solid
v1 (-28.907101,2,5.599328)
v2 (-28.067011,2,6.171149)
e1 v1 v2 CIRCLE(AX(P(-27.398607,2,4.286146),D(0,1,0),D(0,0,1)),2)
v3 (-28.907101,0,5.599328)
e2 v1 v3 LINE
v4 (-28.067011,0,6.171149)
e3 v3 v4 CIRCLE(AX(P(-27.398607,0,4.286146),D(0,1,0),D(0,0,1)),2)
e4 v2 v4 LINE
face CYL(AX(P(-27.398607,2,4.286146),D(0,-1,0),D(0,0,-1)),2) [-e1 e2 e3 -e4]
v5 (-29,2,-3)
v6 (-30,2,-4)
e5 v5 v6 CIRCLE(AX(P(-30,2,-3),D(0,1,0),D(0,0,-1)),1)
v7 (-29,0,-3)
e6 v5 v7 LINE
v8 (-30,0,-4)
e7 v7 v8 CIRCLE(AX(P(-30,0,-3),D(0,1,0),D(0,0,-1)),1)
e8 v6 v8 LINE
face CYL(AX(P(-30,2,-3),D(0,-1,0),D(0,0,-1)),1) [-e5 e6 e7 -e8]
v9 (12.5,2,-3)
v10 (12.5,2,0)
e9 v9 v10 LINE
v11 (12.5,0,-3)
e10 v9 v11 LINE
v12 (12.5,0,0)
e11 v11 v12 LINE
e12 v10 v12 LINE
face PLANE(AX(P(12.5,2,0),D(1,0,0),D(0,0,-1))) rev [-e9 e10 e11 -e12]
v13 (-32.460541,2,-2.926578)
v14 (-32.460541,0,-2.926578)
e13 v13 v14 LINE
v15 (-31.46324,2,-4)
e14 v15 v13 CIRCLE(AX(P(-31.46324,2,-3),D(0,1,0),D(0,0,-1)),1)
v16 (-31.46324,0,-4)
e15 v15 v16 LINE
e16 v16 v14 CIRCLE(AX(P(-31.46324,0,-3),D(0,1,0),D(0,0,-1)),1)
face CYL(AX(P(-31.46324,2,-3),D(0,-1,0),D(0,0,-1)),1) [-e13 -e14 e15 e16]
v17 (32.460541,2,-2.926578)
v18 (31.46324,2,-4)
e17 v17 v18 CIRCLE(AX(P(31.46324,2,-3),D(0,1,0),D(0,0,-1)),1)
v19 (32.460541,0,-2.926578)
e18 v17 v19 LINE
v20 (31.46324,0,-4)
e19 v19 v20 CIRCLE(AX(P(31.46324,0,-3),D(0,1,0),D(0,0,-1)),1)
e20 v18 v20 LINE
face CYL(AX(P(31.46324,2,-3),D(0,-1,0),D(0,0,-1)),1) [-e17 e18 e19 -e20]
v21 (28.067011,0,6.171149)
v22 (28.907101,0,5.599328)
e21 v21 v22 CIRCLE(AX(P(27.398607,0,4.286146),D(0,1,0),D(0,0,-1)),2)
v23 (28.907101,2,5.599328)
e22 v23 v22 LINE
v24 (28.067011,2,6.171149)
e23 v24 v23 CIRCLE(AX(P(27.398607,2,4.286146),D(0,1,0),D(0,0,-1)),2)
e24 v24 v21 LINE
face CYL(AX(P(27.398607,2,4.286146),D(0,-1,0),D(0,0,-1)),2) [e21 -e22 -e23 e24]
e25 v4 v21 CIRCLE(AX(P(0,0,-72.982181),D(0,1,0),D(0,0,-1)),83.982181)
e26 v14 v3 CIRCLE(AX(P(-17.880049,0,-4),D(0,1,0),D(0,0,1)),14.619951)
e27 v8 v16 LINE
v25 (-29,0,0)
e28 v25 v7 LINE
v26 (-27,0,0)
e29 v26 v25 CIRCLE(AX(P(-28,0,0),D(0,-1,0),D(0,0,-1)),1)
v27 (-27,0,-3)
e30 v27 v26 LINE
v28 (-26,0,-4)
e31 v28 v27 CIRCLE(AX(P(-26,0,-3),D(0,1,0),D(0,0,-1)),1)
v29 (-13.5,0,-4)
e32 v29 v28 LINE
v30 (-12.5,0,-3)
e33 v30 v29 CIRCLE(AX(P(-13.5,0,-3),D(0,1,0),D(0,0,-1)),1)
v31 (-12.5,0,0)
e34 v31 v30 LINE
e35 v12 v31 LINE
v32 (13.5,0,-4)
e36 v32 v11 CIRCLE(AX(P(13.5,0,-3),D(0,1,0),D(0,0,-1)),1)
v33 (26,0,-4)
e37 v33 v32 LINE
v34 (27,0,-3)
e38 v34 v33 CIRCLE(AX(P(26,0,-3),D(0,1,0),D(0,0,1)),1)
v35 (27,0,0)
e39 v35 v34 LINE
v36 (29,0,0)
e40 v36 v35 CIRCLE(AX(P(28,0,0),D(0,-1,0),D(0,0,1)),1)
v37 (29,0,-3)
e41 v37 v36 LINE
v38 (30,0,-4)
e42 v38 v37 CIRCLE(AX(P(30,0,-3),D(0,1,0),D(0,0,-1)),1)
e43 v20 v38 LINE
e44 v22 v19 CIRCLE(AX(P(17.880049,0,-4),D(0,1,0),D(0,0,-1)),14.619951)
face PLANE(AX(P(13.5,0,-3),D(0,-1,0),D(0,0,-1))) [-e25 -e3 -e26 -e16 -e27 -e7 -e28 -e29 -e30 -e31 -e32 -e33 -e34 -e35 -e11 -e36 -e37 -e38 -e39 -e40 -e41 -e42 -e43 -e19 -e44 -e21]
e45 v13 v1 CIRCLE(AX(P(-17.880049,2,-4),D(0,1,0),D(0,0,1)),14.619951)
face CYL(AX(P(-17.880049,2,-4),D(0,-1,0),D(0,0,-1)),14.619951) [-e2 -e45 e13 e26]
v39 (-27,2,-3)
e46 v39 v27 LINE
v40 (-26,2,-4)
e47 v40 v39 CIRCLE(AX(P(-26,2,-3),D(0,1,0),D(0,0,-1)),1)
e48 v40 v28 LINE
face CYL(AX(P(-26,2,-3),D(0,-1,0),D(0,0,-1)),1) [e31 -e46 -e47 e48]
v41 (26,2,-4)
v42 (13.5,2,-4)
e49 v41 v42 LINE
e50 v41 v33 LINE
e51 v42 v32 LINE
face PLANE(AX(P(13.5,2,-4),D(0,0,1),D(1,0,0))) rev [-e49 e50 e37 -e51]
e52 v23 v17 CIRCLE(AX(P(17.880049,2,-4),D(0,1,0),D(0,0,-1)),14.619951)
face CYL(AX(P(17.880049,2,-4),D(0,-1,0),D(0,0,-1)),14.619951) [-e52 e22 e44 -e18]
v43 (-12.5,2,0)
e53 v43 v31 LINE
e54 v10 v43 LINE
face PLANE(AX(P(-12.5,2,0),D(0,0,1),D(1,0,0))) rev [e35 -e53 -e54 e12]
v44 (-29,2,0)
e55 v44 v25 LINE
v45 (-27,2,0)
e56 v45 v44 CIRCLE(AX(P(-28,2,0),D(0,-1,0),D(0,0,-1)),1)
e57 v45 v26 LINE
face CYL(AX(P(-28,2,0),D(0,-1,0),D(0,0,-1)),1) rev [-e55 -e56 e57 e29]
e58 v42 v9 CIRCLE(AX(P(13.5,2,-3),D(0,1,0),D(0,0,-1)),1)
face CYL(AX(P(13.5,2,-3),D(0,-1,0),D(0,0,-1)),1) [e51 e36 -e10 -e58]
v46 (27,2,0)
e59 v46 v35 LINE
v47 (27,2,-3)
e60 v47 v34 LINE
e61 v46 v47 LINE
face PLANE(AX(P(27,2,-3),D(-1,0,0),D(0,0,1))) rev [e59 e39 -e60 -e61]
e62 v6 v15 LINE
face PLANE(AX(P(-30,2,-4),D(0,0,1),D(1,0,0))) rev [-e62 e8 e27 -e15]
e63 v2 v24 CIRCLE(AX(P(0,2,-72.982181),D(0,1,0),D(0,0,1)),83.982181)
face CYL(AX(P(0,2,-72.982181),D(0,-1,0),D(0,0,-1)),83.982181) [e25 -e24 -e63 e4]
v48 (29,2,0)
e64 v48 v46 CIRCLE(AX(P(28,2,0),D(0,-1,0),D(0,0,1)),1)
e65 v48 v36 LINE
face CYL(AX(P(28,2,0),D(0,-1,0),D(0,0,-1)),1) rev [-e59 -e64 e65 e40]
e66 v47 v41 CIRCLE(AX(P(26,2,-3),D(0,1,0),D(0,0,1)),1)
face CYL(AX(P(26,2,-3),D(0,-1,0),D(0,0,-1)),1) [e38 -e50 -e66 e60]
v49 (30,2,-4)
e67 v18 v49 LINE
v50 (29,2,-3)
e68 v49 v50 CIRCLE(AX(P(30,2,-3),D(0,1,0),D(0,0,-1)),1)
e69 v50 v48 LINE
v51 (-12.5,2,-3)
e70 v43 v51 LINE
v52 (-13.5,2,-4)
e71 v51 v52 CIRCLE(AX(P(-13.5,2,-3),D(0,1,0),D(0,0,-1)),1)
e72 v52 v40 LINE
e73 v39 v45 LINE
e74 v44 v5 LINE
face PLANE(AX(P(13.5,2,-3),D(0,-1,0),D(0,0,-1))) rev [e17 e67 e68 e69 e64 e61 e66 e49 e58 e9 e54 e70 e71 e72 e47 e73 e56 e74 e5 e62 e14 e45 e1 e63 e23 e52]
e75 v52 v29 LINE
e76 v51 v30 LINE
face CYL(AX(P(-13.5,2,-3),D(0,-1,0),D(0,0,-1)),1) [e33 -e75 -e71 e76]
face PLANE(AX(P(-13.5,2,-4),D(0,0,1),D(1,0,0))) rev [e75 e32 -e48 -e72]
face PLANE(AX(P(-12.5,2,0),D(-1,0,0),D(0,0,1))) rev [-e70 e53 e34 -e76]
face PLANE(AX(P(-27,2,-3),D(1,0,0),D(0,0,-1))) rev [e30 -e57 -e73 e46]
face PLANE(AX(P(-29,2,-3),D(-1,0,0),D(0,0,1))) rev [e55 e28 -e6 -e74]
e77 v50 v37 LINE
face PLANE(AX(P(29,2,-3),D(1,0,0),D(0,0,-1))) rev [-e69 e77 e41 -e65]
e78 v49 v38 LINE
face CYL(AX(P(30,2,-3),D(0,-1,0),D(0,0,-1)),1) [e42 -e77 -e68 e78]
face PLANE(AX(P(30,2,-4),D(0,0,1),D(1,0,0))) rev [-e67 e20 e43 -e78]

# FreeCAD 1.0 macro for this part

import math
import FreeCAD as App
import Part
import Sketcher

V = App.Vector
Q = App.Units.Quantity

doc = App.newDocument("Part")
body = doc.addObject("PartDesign::Body", "Body")

sketch1 = body.newObject("Sketcher::SketchObject", "Sketch")
sketch1.AttachmentSupport = (doc.getObject("XZ_Plane"), [""])
sketch1.MapMode = "FlatFace"
sketch1.addGeometry(Part.LineSegment(V(12.5, 0, 0), V(-12.5, 0, 0)), False)
sketch1.addGeometry(Part.LineSegment(V(-12.5, 0, 0), V(-12.5, -3, 0)), False)
sketch1.addGeometry(Part.ArcOfCircle(Part.Circle(V(-13.5, -3, 0), V(0, 0, 1), 1), math.radians(-90), math.radians(0)), False)
sketch1.addGeometry(Part.LineSegment(V(-13.5, -4, 0), V(-26, -4, 0)), False)
sketch1.addGeometry(Part.ArcOfCircle(Part.Circle(V(-26, -3, 0), V(0, 0, 1), 1), math.radians(-180), math.radians(-90)), False)
sketch1.addGeometry(Part.LineSegment(V(-27, -3, 0), V(-27, 0, 0)), False)
sketch1.addGeometry(Part.ArcOfCircle(Part.Circle(V(-28, 0, 0), V(0, 0, 1), 1), math.radians(0), math.radians(180)), False)
sketch1.addGeometry(Part.LineSegment(V(-29, 0, 0), V(-29, -3, 0)), False)
sketch1.addGeometry(Part.ArcOfCircle(Part.Circle(V(-30, -3, 0), V(0, 0, 1), 1), math.radians(-90), math.radians(0)), False)
sketch1.addGeometry(Part.LineSegment(V(-30, -4, 0), V(-31.46324, -4, 0)), False)
sketch1.addGeometry(Part.ArcOfCircle(Part.Circle(V(-31.46324, -3, 0), V(0, 0, 1), 1), math.radians(175.789458), math.radians(270)), False)
sketch1.addGeometry(Part.ArcOfCircle(Part.Circle(V(-17.880049, -4, 0), V(0, 0, 1), 14.619951), math.radians(138.959604), math.radians(175.789457)), False)
sketch1.addGeometry(Part.ArcOfCircle(Part.Circle(V(-27.398607, 4.286146, 0), V(0, 0, 1), 2), math.radians(109.524018), math.radians(138.959604)), False)
sketch1.addGeometry(Part.ArcOfCircle(Part.Circle(V(0, -72.982181, 0), V(0, 0, 1), 83.982181), math.radians(90), math.radians(109.524018)), False)
sketch1.addGeometry(Part.ArcOfCircle(Part.Circle(V(0, -72.982181, 0), V(0, 0, 1), 83.982181), math.radians(70.475982), math.radians(90)), False)
sketch1.addGeometry(Part.ArcOfCircle(Part.Circle(V(27.398607, 4.286146, 0), V(0, 0, 1), 2), math.radians(41.040396), math.radians(70.475982)), False)
sketch1.addGeometry(Part.ArcOfCircle(Part.Circle(V(17.880049, -4, 0), V(0, 0, 1), 14.619951), math.radians(4.210543), math.radians(41.040396)), False)
sketch1.addGeometry(Part.ArcOfCircle(Part.Circle(V(31.46324, -3, 0), V(0, 0, 1), 1), math.radians(-90), math.radians(4.210542)), False)
sketch1.addGeometry(Part.LineSegment(V(31.46324, -4, 0), V(30, -4, 0)), False)
sketch1.addGeometry(Part.ArcOfCircle(Part.Circle(V(30, -3, 0), V(0, 0, 1), 1), math.radians(-180), math.radians(-90)), False)
sketch1.addGeometry(Part.LineSegment(V(29, -3, 0), V(29, 0, 0)), False)
sketch1.addGeometry(Part.ArcOfCircle(Part.Circle(V(28, 0, 0), V(0, 0, 1), 1), math.radians(0), math.radians(180)), False)
sketch1.addGeometry(Part.LineSegment(V(27, 0, 0), V(27, -3, 0)), False)
sketch1.addGeometry(Part.ArcOfCircle(Part.Circle(V(26, -3, 0), V(0, 0, 1), 1), math.radians(-90), math.radians(0)), False)
sketch1.addGeometry(Part.LineSegment(V(26, -4, 0), V(13.5, -4, 0)), False)
sketch1.addGeometry(Part.ArcOfCircle(Part.Circle(V(13.5, -3, 0), V(0, 0, 1), 1), math.radians(-180), math.radians(-90)), False)
sketch1.addGeometry(Part.LineSegment(V(12.5, -3, 0), V(12.5, 0, 0)), False)
sketch1.addConstraint(Sketcher.Constraint("Coincident", 0, 2, 1, 1))
sketch1.addConstraint(Sketcher.Constraint("Tangent", 1, 2, 2, 2))
sketch1.addConstraint(Sketcher.Constraint("Tangent", 2, 1, 3, 1))
sketch1.addConstraint(Sketcher.Constraint("Tangent", 3, 2, 4, 2))
sketch1.addConstraint(Sketcher.Constraint("Tangent", 4, 1, 5, 1))
sketch1.addConstraint(Sketcher.Constraint("Tangent", 5, 2, 6, 1))
sketch1.addConstraint(Sketcher.Constraint("Tangent", 6, 2, 7, 1))
sketch1.addConstraint(Sketcher.Constraint("Tangent", 7, 2, 8, 2))
sketch1.addConstraint(Sketcher.Constraint("Tangent", 8, 1, 9, 1))
sketch1.addConstraint(Sketcher.Constraint("Tangent", 9, 2, 10, 2))
sketch1.addConstraint(Sketcher.Constraint("Tangent", 10, 1, 11, 2))
sketch1.addConstraint(Sketcher.Constraint("Tangent", 11, 1, 12, 2))
sketch1.addConstraint(Sketcher.Constraint("Tangent", 12, 1, 13, 2))
sketch1.addConstraint(Sketcher.Constraint("Tangent", 13, 1, 14, 2))
sketch1.addConstraint(Sketcher.Constraint("Tangent", 14, 1, 15, 2))
sketch1.addConstraint(Sketcher.Constraint("Tangent", 15, 1, 16, 2))
sketch1.addConstraint(Sketcher.Constraint("Tangent", 16, 1, 17, 2))
sketch1.addConstraint(Sketcher.Constraint("Tangent", 17, 1, 18, 1))
sketch1.addConstraint(Sketcher.Constraint("Tangent", 18, 2, 19, 2))
sketch1.addConstraint(Sketcher.Constraint("Tangent", 19, 1, 20, 1))
sketch1.addConstraint(Sketcher.Constraint("Tangent", 20, 2, 21, 1))
sketch1.addConstraint(Sketcher.Constraint("Tangent", 21, 2, 22, 1))
sketch1.addConstraint(Sketcher.Constraint("Tangent", 22, 2, 23, 2))
sketch1.addConstraint(Sketcher.Constraint("Tangent", 23, 1, 24, 1))
sketch1.addConstraint(Sketcher.Constraint("Tangent", 24, 2, 25, 2))
sketch1.addConstraint(Sketcher.Constraint("Tangent", 25, 1, 26, 1))
sketch1.addConstraint(Sketcher.Constraint("Coincident", 26, 2, 0, 1))
sketch1.addConstraint(Sketcher.Constraint("Horizontal", 0))
sketch1.addConstraint(Sketcher.Constraint("Vertical", 1))
sketch1.addConstraint(Sketcher.Constraint("Horizontal", 3))
sketch1.addConstraint(Sketcher.Constraint("Vertical", 5))
sketch1.addConstraint(Sketcher.Constraint("Vertical", 7))
sketch1.addConstraint(Sketcher.Constraint("Horizontal", 9))
sketch1.addConstraint(Sketcher.Constraint("Horizontal", 18))
sketch1.addConstraint(Sketcher.Constraint("Vertical", 20))
sketch1.addConstraint(Sketcher.Constraint("Vertical", 22))
sketch1.addConstraint(Sketcher.Constraint("Horizontal", 24))
sketch1.addConstraint(Sketcher.Constraint("Vertical", 26))
sketch1.addConstraint(Sketcher.Constraint("Equal", 2, 4))
sketch1.addConstraint(Sketcher.Constraint("Equal", 4, 6))
sketch1.addConstraint(Sketcher.Constraint("Equal", 6, 8))
sketch1.addConstraint(Sketcher.Constraint("Equal", 8, 10))
sketch1.addConstraint(Sketcher.Constraint("Equal", 13, 14))
sketch1.addConstraint(Sketcher.Constraint("Equal", 12, 15))
sketch1.addConstraint(Sketcher.Constraint("Equal", 11, 16))
sketch1.addConstraint(Sketcher.Constraint("Equal", 10, 17))
sketch1.addConstraint(Sketcher.Constraint("Equal", 17, 19))
sketch1.addConstraint(Sketcher.Constraint("Equal", 19, 21))
sketch1.addConstraint(Sketcher.Constraint("Equal", 21, 23))
sketch1.addConstraint(Sketcher.Constraint("Equal", 23, 25))
sketch1.addConstraint(Sketcher.Constraint("Symmetric", 6, 3, 21, 3, -1, 1))
sketch1.addConstraint(Sketcher.Constraint("Symmetric", 0, 2, 26, 2, -1, 1))
sketch1.addConstraint(Sketcher.Constraint("Symmetric", 12, 3, 15, 3, -2))
sketch1.addConstraint(Sketcher.Constraint("Symmetric", 10, 3, 17, 3, -2))
sketch1.addConstraint(Sketcher.Constraint("PointOnObject", 6, 3, -1))
sketch1.addConstraint(Sketcher.Constraint("PointOnObject", 13, 1, -2))
sketch1.addConstraint(Sketcher.Constraint("Horizontal", 4, 3, 8, 3))
sketch1.addConstraint(Sketcher.Constraint("Horizontal", 19, 3, 23, 3))
sketch1.addConstraint(Sketcher.Constraint("Horizontal", 16, 3, 2, 1))
sketch1.addConstraint(Sketcher.Constraint("Radius", 2, Q("1 mm")))
sketch1.addConstraint(Sketcher.Constraint("Radius", 12, Q("2 mm")))
sketch1.addConstraint(Sketcher.Constraint("DistanceX", 0, 2, 0, 1, Q("25 mm")))
sketch1.addConstraint(Sketcher.Constraint("DistanceY", 1, 2, 1, 1, Q("3 mm")))
sketch1.addConstraint(Sketcher.Constraint("DistanceX", 3, 2, 3, 1, Q("12.5 mm")))
sketch1.addConstraint(Sketcher.Constraint("DistanceY", -1, 1, 13, 1, Q("11 mm")))
sketch1.addConstraint(Sketcher.Constraint("Radius", 11, Q("14.619951 mm")))
sketch1.addConstraint(Sketcher.Constraint("Radius", 13, Q("83.982181 mm")))
sketch1.addConstraint(Sketcher.Constraint("DistanceX", 9, 2, 9, 1, Q("1.46324 mm")))
pad1 = body.newObject("PartDesign::Pad", "Pad")
pad1.Profile = sketch1
pad1.Length = 2
pad1.Reversed = True

doc.recompute()
